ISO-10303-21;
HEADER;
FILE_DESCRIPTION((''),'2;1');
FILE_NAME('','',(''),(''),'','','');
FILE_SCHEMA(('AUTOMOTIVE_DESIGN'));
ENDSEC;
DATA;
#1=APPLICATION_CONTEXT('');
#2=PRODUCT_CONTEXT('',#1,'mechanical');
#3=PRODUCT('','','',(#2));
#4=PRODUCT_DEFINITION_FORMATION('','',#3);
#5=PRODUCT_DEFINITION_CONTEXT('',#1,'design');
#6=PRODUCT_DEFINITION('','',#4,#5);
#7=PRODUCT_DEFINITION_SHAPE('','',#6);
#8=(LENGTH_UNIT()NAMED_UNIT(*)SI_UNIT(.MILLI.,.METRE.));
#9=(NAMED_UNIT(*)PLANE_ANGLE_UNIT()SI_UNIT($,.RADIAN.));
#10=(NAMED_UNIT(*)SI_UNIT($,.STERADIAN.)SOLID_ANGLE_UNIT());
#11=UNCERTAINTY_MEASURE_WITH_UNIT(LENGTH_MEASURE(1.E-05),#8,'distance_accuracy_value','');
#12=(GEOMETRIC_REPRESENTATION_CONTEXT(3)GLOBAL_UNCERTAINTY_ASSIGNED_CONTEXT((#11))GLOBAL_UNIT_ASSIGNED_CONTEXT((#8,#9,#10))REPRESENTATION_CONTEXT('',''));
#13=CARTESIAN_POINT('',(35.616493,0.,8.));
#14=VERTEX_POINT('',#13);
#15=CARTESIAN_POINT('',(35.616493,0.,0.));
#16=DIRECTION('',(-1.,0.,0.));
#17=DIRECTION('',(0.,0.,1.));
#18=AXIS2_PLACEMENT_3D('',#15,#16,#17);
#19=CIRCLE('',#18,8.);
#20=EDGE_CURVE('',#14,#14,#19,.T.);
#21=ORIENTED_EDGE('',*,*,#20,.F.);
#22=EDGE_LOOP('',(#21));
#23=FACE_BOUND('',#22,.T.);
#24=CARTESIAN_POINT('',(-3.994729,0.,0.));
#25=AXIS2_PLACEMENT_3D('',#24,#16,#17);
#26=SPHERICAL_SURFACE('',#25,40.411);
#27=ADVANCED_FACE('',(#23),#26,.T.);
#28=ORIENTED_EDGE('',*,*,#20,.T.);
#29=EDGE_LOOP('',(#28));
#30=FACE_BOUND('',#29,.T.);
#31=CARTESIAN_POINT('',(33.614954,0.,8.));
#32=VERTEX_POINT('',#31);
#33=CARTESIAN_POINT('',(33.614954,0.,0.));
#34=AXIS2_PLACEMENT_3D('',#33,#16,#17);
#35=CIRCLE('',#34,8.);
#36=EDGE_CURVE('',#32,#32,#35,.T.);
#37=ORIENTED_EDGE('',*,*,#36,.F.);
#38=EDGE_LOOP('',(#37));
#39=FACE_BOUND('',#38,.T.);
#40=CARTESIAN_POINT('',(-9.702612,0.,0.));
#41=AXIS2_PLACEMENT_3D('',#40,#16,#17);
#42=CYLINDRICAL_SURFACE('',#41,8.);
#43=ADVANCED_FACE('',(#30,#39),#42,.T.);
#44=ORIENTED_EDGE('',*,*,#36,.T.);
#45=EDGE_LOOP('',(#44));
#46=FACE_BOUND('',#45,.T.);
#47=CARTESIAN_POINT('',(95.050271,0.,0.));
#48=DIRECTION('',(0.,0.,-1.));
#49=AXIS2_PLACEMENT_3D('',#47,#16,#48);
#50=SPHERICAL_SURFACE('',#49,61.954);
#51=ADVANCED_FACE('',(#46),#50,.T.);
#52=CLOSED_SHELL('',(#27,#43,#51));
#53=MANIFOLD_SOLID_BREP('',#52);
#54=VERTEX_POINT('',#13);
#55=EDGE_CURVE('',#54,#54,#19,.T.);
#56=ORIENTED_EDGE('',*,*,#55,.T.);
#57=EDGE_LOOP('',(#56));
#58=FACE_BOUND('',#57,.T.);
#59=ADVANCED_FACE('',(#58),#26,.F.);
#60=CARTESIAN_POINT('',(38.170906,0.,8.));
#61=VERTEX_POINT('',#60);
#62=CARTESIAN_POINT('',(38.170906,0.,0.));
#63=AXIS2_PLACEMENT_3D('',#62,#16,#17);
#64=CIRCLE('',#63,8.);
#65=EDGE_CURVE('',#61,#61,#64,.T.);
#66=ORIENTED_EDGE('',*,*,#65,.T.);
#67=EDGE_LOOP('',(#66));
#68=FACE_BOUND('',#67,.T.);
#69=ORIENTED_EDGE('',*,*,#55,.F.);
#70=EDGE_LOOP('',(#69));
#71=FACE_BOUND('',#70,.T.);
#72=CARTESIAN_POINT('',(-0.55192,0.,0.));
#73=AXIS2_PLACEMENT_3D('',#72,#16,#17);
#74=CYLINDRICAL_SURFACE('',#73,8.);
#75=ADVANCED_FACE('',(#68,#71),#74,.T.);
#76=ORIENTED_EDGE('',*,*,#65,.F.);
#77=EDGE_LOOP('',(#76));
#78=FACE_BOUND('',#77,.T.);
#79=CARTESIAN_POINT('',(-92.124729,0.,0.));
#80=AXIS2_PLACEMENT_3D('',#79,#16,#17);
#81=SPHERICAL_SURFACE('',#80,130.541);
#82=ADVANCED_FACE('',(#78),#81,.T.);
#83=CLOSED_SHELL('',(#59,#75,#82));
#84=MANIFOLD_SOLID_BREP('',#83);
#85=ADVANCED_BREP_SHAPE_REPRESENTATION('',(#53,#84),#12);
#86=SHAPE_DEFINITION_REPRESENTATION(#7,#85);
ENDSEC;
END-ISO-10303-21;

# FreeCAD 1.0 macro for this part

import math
import FreeCAD as App
import Part
import Sketcher
from FreeCAD import Vector

doc = App.newDocument("Part")
body = doc.addObject("PartDesign::Body", "Body")

sketch1 = body.newObject("Sketcher::SketchObject", "Sketch")
sketch1.AttachmentSupport = (doc.getObject("XZ_Plane"), [""])
sketch1.MapMode = "FlatFace"
sketch1.addGeometry(Part.ArcOfCircle(Part.Circle(Vector(95.050271, 0, 0), Vector(0, 0, 1), 61.954), math.radians(180), math.radians(187.419209)), False)
sketch1.addGeometry(Part.LineSegment(Vector(33.096271, 0, 0), Vector(36.416271, 0, 0)), False)
sketch1.addGeometry(Part.ArcOfCircle(Part.Circle(Vector(-3.994729, 0, 0), Vector(0, 0, 1), 40.411), math.radians(-11.418036), math.radians(0)), False)
sketch1.addGeometry(Part.LineSegment(Vector(35.616493, -8, 0), Vector(33.614954, -8, 0)), False)
sketch1.addConstraint(Sketcher.Constraint("Coincident", 0, 1, 1, 1))
sketch1.addConstraint(Sketcher.Constraint("Coincident", 1, 2, 2, 2))
sketch1.addConstraint(Sketcher.Constraint("Coincident", 2, 1, 3, 1))
sketch1.addConstraint(Sketcher.Constraint("Coincident", 3, 2, 0, 2))
sketch1.addConstraint(Sketcher.Constraint("Horizontal", 1))
sketch1.addConstraint(Sketcher.Constraint("Horizontal", 3))
sketch1.addConstraint(Sketcher.Constraint("PointOnObject", 0, 3, -1))
sketch1.addConstraint(Sketcher.Constraint("PointOnObject", 2, 3, -1))
sketch1.addConstraint(Sketcher.Constraint("PointOnObject", 0, 1, -1))
sketch1.addConstraint(Sketcher.Constraint("DistanceY", 2, 1, -1, 1, 8.0))
sketch1.addConstraint(Sketcher.Constraint("Radius", 0, 61.954))
sketch1.addConstraint(Sketcher.Constraint("Radius", 2, 40.411))
sketch1.addConstraint(Sketcher.Constraint("DistanceX", 1, 1, 1, 2, 3.32))
sketch1.addConstraint(Sketcher.Constraint("DistanceX", -1, 1, 0, 3, 95.050271))
revolution = body.newObject("PartDesign::Revolution", "Revolution")
revolution.Profile = sketch1
revolution.ReferenceAxis = (sketch1, ["H_Axis"])
revolution.Angle = 360
body2 = doc.addObject("PartDesign::Body", "Body001")

sketch2 = body2.newObject("Sketcher::SketchObject", "Sketch001")
sketch2.AttachmentSupport = (doc.getObject("XZ_Plane001"), [""])
sketch2.MapMode = "FlatFace"
sketch2.addGeometry(Part.LineSegment(Vector(38.170906, -8, 0), Vector(35.616493, -8, 0)), False)
sketch2.addGeometry(Part.ArcOfCircle(Part.Circle(Vector(-3.994729, 0, 0), Vector(0, 0, 1), 40.411), math.radians(-11.418036), math.radians(0)), False)
sketch2.addGeometry(Part.LineSegment(Vector(36.416271, 0, 0), Vector(38.416271, 0, 0)), False)
sketch2.addGeometry(Part.ArcOfCircle(Part.Circle(Vector(-92.124728, 0, 0), Vector(0, 0, 1), 130.540999), math.radians(-3.513483), math.radians(0)), False)
sketch2.addConstraint(Sketcher.Constraint("Coincident", 0, 2, 1, 1))
sketch2.addConstraint(Sketcher.Constraint("Coincident", 1, 2, 2, 1))
sketch2.addConstraint(Sketcher.Constraint("Coincident", 2, 2, 3, 2))
sketch2.addConstraint(Sketcher.Constraint("Coincident", 3, 1, 0, 1))
sketch2.addConstraint(Sketcher.Constraint("Horizontal", 0))
sketch2.addConstraint(Sketcher.Constraint("Horizontal", 2))
sketch2.addConstraint(Sketcher.Constraint("PointOnObject", 1, 3, -1))
sketch2.addConstraint(Sketcher.Constraint("PointOnObject", 3, 3, -1))
sketch2.addConstraint(Sketcher.Constraint("PointOnObject", 1, 2, -1))
sketch2.addConstraint(Sketcher.Constraint("DistanceX", 2, 1, 2, 2, 2.0))
sketch2.addConstraint(Sketcher.Constraint("DistanceY", 0, 2, -1, 1, 8.0))
sketch2.addConstraint(Sketcher.Constraint("Radius", 1, 40.411))
sketch2.addConstraint(Sketcher.Constraint("Radius", 3, 130.540999))
sketch2.addConstraint(Sketcher.Constraint("DistanceX", 1, 3, -1, 1, 3.994729))
revolution2 = body2.newObject("PartDesign::Revolution", "Revolution001")
revolution2.Profile = sketch2
revolution2.ReferenceAxis = (sketch2, ["H_Axis"])
revolution2.Angle = 360

doc.recompute()
